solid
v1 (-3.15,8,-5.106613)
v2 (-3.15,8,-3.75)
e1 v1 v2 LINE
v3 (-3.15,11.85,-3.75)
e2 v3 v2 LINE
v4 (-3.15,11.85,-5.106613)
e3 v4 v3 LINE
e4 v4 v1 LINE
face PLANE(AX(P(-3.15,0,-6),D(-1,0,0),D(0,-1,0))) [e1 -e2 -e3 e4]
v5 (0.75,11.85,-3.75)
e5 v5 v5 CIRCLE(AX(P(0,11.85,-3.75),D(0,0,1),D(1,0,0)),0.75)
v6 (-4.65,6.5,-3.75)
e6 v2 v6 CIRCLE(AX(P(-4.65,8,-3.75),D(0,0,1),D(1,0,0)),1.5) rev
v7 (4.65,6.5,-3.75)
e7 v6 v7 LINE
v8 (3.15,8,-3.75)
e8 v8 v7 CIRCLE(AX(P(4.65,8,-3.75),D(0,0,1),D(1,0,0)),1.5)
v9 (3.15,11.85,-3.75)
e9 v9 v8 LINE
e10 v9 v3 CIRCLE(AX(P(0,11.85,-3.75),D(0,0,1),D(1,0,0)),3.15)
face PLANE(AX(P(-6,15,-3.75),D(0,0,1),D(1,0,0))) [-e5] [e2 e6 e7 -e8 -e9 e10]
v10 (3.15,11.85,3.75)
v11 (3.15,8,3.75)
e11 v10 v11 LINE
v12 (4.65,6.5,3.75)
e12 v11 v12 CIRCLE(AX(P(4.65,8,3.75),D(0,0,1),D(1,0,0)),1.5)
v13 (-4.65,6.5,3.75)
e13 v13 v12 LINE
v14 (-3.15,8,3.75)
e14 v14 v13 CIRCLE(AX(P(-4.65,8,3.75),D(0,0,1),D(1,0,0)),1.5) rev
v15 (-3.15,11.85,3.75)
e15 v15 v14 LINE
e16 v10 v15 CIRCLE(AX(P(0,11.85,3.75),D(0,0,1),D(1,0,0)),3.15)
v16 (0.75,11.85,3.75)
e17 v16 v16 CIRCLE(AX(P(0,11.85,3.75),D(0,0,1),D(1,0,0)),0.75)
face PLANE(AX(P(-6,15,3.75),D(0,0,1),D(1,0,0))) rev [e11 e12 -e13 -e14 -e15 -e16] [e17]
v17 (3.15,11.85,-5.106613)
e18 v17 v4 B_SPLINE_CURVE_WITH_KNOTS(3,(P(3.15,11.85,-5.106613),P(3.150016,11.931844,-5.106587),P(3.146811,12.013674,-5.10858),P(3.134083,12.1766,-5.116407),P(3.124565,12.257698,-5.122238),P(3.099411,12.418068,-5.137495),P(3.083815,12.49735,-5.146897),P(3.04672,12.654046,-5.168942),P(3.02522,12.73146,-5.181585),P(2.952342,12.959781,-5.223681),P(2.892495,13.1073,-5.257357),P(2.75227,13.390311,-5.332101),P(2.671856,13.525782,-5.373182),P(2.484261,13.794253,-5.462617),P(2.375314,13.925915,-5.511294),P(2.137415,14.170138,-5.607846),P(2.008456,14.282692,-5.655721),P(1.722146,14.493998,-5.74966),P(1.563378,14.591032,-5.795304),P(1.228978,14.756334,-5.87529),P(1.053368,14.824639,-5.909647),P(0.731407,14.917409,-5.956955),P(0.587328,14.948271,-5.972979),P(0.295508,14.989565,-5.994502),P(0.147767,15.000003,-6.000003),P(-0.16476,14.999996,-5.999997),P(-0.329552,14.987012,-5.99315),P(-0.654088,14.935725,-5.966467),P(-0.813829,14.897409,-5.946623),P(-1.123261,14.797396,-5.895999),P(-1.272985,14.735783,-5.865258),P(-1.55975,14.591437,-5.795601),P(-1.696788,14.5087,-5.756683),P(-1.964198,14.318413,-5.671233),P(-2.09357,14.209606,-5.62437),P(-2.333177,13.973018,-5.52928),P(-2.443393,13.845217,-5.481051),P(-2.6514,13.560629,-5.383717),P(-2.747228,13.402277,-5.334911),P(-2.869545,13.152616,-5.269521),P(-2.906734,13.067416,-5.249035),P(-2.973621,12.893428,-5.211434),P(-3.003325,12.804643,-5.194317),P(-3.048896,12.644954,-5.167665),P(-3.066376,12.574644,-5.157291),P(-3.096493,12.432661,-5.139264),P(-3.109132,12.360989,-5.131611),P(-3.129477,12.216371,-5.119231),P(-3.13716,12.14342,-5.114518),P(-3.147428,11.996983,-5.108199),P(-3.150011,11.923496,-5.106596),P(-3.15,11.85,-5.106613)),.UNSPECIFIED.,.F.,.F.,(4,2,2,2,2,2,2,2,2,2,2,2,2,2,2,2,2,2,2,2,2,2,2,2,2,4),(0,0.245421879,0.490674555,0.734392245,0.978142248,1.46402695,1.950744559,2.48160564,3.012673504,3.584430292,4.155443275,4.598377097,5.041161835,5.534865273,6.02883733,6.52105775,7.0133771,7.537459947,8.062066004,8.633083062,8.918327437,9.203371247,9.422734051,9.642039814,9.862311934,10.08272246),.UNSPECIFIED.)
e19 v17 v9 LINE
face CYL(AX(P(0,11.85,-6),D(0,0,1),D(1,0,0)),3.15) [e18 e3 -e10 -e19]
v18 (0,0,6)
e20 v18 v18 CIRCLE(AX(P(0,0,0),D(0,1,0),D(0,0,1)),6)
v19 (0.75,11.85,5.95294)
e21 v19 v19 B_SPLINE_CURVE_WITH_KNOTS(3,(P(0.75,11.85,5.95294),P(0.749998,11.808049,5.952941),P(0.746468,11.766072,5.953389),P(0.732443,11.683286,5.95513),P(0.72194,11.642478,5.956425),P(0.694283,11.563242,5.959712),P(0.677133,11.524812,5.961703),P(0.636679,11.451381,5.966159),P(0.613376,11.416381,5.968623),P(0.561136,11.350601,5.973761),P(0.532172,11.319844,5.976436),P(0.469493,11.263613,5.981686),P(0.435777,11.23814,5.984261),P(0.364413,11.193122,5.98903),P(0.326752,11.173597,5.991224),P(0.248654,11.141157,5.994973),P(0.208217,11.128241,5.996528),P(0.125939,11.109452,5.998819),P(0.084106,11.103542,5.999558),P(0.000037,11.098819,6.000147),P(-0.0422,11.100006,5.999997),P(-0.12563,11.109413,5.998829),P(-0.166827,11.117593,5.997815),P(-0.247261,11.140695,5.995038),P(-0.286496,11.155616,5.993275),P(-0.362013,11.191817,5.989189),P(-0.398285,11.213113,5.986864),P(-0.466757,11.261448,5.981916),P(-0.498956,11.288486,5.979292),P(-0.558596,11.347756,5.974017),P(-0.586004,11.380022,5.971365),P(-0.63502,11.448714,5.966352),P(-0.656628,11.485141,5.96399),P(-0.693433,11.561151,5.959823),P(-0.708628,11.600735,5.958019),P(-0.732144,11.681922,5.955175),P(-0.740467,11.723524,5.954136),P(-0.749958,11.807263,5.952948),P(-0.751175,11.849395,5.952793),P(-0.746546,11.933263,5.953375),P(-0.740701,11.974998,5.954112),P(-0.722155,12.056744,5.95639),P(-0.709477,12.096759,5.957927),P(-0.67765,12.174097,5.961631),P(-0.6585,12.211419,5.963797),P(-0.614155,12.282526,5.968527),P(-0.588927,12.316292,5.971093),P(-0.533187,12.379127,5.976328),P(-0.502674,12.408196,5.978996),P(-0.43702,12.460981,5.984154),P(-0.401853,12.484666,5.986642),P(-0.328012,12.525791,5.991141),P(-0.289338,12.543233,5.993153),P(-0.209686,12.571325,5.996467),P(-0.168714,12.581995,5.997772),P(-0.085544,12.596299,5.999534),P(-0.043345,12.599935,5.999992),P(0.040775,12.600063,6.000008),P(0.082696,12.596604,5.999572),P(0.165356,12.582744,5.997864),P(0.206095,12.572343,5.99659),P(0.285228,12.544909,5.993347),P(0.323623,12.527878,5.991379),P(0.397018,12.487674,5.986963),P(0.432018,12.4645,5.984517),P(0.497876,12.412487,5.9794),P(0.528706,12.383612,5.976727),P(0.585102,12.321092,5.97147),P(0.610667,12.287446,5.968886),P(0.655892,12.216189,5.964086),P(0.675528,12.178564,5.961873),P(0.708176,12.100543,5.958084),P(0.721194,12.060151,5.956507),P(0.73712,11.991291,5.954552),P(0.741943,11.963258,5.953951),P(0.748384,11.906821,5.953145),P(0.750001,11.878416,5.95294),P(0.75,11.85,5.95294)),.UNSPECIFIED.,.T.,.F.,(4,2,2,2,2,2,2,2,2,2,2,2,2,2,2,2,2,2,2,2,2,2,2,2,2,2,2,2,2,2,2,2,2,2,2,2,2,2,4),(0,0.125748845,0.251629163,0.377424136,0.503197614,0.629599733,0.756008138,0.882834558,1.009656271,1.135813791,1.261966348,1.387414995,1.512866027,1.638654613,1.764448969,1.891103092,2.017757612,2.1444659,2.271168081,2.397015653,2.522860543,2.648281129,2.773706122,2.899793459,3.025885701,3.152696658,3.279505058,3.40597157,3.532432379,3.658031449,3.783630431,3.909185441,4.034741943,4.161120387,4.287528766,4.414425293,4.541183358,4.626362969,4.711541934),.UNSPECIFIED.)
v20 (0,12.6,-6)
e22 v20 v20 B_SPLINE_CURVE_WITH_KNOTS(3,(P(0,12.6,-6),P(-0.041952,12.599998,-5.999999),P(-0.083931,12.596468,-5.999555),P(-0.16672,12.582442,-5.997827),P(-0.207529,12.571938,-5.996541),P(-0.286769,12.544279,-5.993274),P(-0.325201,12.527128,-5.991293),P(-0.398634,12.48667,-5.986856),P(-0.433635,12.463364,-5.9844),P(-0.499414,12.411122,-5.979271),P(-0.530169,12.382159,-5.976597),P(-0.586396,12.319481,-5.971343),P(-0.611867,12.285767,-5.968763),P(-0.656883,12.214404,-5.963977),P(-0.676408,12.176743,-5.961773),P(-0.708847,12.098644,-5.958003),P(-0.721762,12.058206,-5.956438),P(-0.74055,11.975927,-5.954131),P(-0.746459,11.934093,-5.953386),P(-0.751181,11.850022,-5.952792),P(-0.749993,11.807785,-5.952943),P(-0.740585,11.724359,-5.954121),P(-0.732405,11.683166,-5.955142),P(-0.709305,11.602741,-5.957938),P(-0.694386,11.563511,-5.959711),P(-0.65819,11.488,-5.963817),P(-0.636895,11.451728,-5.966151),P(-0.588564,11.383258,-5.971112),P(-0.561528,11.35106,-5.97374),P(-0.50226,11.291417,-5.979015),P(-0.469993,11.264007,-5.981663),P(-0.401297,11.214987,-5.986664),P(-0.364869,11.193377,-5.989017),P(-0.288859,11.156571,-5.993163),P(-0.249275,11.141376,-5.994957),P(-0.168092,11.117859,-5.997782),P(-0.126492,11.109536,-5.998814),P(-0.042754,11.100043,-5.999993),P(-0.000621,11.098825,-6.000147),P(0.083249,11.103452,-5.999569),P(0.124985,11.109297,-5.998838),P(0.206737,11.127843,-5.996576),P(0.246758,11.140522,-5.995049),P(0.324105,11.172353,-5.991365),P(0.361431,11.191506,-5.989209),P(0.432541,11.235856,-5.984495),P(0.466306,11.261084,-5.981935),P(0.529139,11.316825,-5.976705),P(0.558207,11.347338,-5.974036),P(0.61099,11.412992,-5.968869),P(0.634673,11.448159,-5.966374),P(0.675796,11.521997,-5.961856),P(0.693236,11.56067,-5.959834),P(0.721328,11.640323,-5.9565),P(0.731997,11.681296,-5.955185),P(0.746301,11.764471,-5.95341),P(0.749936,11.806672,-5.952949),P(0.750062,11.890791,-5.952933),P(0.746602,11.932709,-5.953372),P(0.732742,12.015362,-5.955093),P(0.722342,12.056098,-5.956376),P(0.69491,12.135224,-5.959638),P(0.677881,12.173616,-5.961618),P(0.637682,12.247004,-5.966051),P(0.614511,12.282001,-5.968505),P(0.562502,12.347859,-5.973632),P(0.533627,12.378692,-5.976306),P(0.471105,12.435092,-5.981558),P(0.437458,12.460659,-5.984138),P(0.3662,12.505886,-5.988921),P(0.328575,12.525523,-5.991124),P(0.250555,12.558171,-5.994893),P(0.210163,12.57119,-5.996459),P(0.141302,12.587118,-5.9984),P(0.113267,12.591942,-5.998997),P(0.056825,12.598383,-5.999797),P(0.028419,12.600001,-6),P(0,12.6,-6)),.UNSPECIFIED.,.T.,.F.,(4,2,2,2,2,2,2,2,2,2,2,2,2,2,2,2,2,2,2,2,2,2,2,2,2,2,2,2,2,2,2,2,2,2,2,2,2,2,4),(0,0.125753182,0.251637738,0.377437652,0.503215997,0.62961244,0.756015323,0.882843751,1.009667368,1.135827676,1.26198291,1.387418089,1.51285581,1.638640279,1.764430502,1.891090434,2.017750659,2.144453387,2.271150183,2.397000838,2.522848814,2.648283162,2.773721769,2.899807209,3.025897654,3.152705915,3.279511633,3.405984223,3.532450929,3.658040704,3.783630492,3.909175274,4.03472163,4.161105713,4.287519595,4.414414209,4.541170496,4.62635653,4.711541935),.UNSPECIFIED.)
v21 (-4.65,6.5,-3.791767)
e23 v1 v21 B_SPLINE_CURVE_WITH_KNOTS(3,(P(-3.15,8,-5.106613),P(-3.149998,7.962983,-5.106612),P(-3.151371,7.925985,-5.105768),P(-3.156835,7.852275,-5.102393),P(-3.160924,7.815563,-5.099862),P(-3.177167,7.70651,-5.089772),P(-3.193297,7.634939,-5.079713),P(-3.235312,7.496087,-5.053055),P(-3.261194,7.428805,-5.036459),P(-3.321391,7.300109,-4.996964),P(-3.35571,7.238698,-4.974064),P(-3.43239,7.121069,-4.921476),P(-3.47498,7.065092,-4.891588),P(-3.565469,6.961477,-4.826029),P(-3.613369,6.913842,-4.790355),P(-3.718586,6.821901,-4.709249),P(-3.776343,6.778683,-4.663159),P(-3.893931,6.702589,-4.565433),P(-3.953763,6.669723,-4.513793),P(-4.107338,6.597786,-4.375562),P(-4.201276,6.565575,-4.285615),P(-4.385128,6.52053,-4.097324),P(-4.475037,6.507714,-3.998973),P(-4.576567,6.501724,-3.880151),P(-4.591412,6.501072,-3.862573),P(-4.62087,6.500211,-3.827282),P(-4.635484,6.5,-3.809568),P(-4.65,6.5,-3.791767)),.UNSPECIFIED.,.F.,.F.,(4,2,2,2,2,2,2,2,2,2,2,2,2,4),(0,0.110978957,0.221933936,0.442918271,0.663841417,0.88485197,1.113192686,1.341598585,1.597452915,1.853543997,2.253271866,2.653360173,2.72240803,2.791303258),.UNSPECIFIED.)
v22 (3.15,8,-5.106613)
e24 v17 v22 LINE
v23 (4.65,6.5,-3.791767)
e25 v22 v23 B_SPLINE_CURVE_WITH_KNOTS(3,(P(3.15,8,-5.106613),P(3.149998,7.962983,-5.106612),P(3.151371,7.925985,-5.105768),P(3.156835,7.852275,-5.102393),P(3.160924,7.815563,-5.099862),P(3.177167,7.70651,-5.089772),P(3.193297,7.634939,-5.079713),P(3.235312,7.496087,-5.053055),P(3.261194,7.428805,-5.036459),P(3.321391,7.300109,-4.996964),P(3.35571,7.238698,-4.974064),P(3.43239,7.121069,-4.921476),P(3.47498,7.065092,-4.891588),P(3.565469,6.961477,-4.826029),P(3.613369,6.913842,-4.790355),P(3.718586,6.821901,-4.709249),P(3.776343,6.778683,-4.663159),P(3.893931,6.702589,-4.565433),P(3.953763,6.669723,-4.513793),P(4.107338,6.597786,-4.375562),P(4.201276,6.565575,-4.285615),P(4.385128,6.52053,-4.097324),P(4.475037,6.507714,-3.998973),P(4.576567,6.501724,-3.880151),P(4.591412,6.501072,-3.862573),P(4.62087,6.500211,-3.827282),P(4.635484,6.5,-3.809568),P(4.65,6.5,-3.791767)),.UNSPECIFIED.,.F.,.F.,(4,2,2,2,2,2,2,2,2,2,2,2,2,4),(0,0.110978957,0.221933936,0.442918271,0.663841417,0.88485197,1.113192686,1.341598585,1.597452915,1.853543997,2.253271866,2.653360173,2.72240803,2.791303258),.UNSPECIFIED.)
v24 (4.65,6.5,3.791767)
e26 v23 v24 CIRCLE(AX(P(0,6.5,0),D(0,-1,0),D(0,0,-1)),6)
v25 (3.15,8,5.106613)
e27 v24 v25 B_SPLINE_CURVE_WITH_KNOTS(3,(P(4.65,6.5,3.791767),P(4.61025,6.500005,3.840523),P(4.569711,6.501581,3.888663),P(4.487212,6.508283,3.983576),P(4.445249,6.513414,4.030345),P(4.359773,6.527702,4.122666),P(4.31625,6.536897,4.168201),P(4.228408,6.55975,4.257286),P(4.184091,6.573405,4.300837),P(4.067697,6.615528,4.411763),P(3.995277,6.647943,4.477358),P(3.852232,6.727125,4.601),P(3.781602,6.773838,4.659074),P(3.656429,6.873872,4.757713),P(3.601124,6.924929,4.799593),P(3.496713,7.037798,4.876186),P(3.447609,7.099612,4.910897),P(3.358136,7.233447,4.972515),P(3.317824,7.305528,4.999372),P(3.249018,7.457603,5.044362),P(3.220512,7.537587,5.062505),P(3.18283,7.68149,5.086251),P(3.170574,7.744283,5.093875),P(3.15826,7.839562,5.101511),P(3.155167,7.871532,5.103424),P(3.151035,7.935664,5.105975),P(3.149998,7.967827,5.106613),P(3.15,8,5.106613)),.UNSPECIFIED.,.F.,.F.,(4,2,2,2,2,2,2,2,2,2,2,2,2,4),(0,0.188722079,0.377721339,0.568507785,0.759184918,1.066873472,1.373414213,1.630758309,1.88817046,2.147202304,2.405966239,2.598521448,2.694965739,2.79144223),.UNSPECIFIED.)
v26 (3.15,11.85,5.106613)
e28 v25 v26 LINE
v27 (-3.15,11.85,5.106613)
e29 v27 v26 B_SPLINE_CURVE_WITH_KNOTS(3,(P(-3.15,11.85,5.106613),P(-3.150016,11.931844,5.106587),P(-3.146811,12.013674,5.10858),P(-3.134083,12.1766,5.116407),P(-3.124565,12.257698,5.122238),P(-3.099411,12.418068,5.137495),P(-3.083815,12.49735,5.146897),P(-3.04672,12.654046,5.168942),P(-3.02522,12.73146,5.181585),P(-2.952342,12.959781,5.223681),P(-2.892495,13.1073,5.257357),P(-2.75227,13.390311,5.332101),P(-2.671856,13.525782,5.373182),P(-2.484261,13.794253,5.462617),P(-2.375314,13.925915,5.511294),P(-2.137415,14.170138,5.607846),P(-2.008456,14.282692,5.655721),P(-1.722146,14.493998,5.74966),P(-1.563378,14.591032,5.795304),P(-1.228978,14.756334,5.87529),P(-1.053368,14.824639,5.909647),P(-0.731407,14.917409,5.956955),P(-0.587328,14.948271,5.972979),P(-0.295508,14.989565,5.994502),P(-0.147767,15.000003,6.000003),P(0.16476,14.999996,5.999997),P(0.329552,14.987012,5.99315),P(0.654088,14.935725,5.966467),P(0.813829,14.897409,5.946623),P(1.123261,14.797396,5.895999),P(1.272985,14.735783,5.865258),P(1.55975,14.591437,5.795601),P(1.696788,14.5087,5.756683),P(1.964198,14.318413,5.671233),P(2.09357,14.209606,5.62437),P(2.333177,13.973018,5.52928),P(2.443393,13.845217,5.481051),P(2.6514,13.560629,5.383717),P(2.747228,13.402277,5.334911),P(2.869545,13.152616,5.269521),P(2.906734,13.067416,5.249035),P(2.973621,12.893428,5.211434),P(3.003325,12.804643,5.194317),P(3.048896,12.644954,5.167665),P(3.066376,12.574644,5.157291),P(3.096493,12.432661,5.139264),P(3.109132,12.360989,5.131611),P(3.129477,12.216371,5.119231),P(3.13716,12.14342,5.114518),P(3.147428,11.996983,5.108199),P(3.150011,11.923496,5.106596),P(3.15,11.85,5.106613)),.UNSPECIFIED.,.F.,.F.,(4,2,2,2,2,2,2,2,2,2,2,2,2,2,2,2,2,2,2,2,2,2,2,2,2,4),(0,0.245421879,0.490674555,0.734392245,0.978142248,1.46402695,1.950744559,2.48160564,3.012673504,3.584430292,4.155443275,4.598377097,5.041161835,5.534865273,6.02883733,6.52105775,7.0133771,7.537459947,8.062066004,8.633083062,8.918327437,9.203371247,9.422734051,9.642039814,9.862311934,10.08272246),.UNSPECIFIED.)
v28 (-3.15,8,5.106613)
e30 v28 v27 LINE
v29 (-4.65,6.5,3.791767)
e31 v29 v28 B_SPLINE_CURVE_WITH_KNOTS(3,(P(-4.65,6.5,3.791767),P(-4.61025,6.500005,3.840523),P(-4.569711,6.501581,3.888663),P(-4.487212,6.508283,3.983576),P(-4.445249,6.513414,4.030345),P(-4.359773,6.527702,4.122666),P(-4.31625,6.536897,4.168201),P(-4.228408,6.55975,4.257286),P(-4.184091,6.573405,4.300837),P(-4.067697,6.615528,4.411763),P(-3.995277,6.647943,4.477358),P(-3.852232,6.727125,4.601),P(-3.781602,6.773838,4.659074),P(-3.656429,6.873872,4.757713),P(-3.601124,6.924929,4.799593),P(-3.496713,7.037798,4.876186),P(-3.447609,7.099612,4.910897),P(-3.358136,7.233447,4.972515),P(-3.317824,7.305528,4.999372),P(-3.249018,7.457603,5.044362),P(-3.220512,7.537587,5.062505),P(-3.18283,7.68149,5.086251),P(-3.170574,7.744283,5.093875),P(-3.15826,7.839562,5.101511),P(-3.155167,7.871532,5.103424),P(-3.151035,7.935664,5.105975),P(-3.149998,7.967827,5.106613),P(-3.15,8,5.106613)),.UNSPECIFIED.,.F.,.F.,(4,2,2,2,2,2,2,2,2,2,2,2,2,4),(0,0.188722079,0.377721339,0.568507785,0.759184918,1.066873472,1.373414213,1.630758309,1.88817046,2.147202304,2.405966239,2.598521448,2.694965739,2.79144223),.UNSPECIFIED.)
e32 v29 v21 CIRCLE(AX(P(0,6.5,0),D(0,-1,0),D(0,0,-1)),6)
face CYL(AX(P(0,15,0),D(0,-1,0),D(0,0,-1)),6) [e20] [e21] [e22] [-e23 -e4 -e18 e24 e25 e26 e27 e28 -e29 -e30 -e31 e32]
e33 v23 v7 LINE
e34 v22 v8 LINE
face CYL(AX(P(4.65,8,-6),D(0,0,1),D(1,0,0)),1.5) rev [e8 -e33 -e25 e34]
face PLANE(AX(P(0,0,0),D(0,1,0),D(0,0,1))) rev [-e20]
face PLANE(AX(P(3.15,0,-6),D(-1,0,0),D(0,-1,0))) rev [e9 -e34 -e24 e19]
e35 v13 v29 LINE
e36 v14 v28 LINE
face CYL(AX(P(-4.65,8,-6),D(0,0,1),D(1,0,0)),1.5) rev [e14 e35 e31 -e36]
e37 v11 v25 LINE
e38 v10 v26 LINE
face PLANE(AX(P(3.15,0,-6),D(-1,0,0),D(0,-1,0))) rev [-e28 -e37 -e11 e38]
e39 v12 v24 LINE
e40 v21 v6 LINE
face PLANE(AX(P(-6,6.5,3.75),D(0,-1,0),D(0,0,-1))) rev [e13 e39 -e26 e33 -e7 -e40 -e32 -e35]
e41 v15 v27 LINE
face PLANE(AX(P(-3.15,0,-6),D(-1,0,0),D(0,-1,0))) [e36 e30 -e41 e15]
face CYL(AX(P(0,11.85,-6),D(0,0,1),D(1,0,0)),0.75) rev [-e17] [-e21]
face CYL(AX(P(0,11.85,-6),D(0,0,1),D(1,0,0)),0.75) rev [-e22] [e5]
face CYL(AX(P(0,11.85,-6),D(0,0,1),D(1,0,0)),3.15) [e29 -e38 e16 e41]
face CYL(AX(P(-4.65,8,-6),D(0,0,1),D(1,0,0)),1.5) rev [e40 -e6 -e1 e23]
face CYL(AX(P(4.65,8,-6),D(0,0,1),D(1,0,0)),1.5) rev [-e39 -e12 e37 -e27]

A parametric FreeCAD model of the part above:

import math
import FreeCAD as App
import Part
import Sketcher
from FreeCAD import Vector
Q = App.Units.Quantity


def add_polygon(sketch, points):
    """Adds a closed chain of lines whose ends are joined by coincident constraints."""
    first, n = sketch.GeometryCount, len(points)
    for a, b in zip(points, points[1:] + points[:1]):
        sketch.addGeometry(Part.LineSegment(App.Vector(*a, 0), App.Vector(*b, 0)), False)
    for i in range(n):
        sketch.addConstraint(Sketcher.Constraint("Coincident", first + i, 2, first + (i + 1) % n, 1))

doc = App.newDocument("Part")
params = doc.addObject("Spreadsheet::Sheet", "Params")
for row, (alias, value) in enumerate([
    ("sketch1_diameter", "12 mm"),
    ("pad1_length", "15 mm"),
    ("sketch2_width", "8.5 mm"),
    ("sketch2_height", "7.5 mm"),
    ("sketch3_diameter", "1.5 mm"),
    ("sketch3_radius", "1.5 mm"),
    ("sketch3_radius2", "3.15 mm"),
    ("sketch3_height", "8.5 mm"),
], start=1):
    params.set(f"A{row}", alias)
    params.set(f"B{row}", "=" + value)
    params.setAlias(f"B{row}", alias)

body = doc.addObject("PartDesign::Body", "Body")

# Sketch on XZ plane
sketch1 = body.newObject("Sketcher::SketchObject", "Sketch")
sketch1.AttachmentSupport = (doc.getObject("XZ_Plane"), [""])
sketch1.MapMode = "FlatFace"
sketch1.addGeometry(Part.Circle(Vector(0, 0, 0), Vector(0, 0, 1), 6), False)
sketch1.addConstraint([
    Sketcher.Constraint("Coincident", 0, 3, -1, 1),
    Sketcher.Constraint("Diameter", 0, Q("12 mm")),
])
sketch1.setExpression("Constraints[1]", "Params.sketch1_diameter")
pad1 = body.newObject("PartDesign::Pad", "Pad")
pad1.Profile = sketch1
pad1.setExpression("Length", "Params.pad1_length")
pad1.Reversed = True

# Sketch on YZ plane
sketch2 = body.newObject("Sketcher::SketchObject", "Sketch001")
sketch2.AttachmentSupport = (doc.getObject("YZ_Plane"), [""])
sketch2.MapMode = "FlatFace"
add_polygon(sketch2, [(15, 4), (6, 4), (6, -4), (15, -4)])  # lines 0-3
sketch2.addConstraint([
    Sketcher.Constraint("Horizontal", 0),
    Sketcher.Constraint("Vertical", 1),
    Sketcher.Constraint("Horizontal", 2),
    Sketcher.Constraint("Vertical", 3),
    Sketcher.Constraint("DistanceX", 0, 2, 0, 1, Q("8.5 mm")),
    Sketcher.Constraint("DistanceY", 1, 2, 1, 1, Q("7.5 mm")),
    Sketcher.Constraint("DistanceX", -1, 1, 2, 2, Q("15 mm")),
    Sketcher.Constraint("DistanceY", -1, 1, 0, 2, Q("3.75 mm")),
])
sketch2.setExpression("Constraints[8]", "Params.sketch2_width")
sketch2.setExpression("Constraints[9]", "Params.sketch2_height")
pocket1 = body.newObject("PartDesign::Pocket", "Pocket")
pocket1.Profile = sketch2
pocket1.Type = "ThroughAll"
pocket1.Midplane = True

# Sketch on XY plane
sketch3 = body.newObject("Sketcher::SketchObject", "Sketch002")
sketch3.AttachmentSupport = (doc.getObject("XY_Plane"), [""])
sketch3.MapMode = "FlatFace"
sketch3.addGeometry([
    Part.LineSegment(Vector(-3.15, 8, 0), Vector(-3.15, 11.85, 0)),  # 0
    Part.ArcOfCircle(Part.Circle(Vector(0, 11.85, 0), Vector(0, 0, 1), 3.15), math.radians(90), math.radians(180)),  # 1
    Part.LineSegment(Vector(0, 15, 0), Vector(-4.684, 15, 0)),  # 2
    Part.LineSegment(Vector(-4.684, 15, 0), Vector(-4.684, 6.5, 0)),  # 3
    Part.LineSegment(Vector(-4.684, 6.5, 0), Vector(-4.65, 6.5, 0)),  # 4
    Part.ArcOfCircle(Part.Circle(Vector(-4.65, 8, 0), Vector(0, 0, 1), 1.5), math.radians(-90), math.radians(0)),  # 5
    Part.LineSegment(Vector(4.684, 15, 0), Vector(0, 15, 0)),  # 6
    Part.ArcOfCircle(Part.Circle(Vector(0, 11.85, 0), Vector(0, 0, 1), 3.15), math.radians(0), math.radians(90)),  # 7
    Part.LineSegment(Vector(3.15, 11.85, 0), Vector(3.15, 8, 0)),  # 8
    Part.ArcOfCircle(Part.Circle(Vector(4.65, 8, 0), Vector(0, 0, 1), 1.5), math.radians(180), math.radians(270)),  # 9
    Part.LineSegment(Vector(4.65, 6.5, 0), Vector(4.684, 6.5, 0)),  # 10
    Part.LineSegment(Vector(4.684, 6.5, 0), Vector(4.684, 15, 0)),  # 11
    Part.Circle(Vector(0, 11.85, 0), Vector(0, 0, 1), 0.75),  # 12
], False)
sketch3.addConstraint([
    Sketcher.Constraint("Tangent", 0, 2, 1, 2),
    Sketcher.Constraint("Tangent", 1, 1, 2, 1),
    Sketcher.Constraint("Coincident", 2, 2, 3, 1),
    Sketcher.Constraint("Coincident", 3, 2, 4, 1),
    Sketcher.Constraint("Tangent", 4, 2, 5, 1),
    Sketcher.Constraint("Tangent", 5, 2, 0, 1),
    Sketcher.Constraint("Tangent", 6, 2, 7, 2),
    Sketcher.Constraint("Tangent", 7, 1, 8, 1),
    Sketcher.Constraint("Tangent", 8, 2, 9, 1),
    Sketcher.Constraint("Tangent", 9, 2, 10, 1),
    Sketcher.Constraint("Coincident", 10, 2, 11, 1),
    Sketcher.Constraint("Coincident", 11, 2, 6, 1),
    Sketcher.Constraint("Vertical", 0),
    Sketcher.Constraint("Horizontal", 2),
    Sketcher.Constraint("Vertical", 3),
    Sketcher.Constraint("Horizontal", 4),
    Sketcher.Constraint("Horizontal", 6),
    Sketcher.Constraint("Vertical", 8),
    Sketcher.Constraint("Horizontal", 10),
    Sketcher.Constraint("Vertical", 11),
    Sketcher.Constraint("Coincident", 7, 3, 1, 3),
    Sketcher.Constraint("Coincident", 12, 3, 1, 3),
    Sketcher.Constraint("Equal", 1, 7),
    Sketcher.Constraint("Equal", 5, 9),
    Sketcher.Constraint("Symmetric", 5, 3, 9, 3, -2),
    Sketcher.Constraint("Equal", 2, 6),
    Sketcher.Constraint("Diameter", 12, Q("1.5 mm")),
    Sketcher.Constraint("Radius", 5, Q("1.5 mm")),
    Sketcher.Constraint("Radius", 1, Q("3.15 mm")),
    Sketcher.Constraint("DistanceY", 3, 2, 3, 1, Q("8.5 mm")),
    Sketcher.Constraint("DistanceY", -1, 1, 5, 3, Q("8 mm")),
    Sketcher.Constraint("DistanceX", 2, 2, 2, 1, Q("4.683748 mm")),
])
sketch3.setExpression("Constraints[26]", "Params.sketch3_diameter")
sketch3.setExpression("Constraints[27]", "Params.sketch3_radius")
sketch3.setExpression("Constraints[28]", "Params.sketch3_radius2")
sketch3.setExpression("Constraints[29]", "Params.sketch3_height")
pocket2 = body.newObject("PartDesign::Pocket", "Pocket001")
pocket2.Profile = sketch3
pocket2.Type = "ThroughAll"
pocket2.Midplane = True

doc.recompute()
